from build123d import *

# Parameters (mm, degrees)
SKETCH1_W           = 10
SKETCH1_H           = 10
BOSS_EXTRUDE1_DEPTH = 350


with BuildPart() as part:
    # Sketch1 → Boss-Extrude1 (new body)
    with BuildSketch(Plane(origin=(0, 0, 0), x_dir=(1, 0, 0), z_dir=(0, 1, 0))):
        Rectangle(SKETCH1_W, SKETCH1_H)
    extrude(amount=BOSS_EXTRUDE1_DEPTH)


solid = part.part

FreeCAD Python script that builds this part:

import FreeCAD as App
import Part
import Sketcher

V = App.Vector


def add_polygon(sketch, points):
    """Adds a closed chain of lines whose ends are joined by coincident constraints."""
    first, n = sketch.GeometryCount, len(points)
    for a, b in zip(points, points[1:] + points[:1]):
        sketch.addGeometry(Part.LineSegment(App.Vector(*a, 0), App.Vector(*b, 0)), False)
    for i in range(n):
        sketch.addConstraint(Sketcher.Constraint("Coincident", first + i, 2, first + (i + 1) % n, 1))

doc = App.newDocument("Part")
body = doc.addObject("PartDesign::Body", "Body")

# Sketch on XZ plane
sketch1 = body.newObject("Sketcher::SketchObject", "Sketch")
sketch1.AttachmentSupport = (doc.getObject("XZ_Plane"), [""])
sketch1.MapMode = "FlatFace"
add_polygon(sketch1, [(-5, -5), (-5, 5), (5, 5), (5, -5)])  # lines 0-3
sketch1.addConstraint([
    Sketcher.Constraint("Vertical", 0),
    Sketcher.Constraint("Horizontal", 1),
    Sketcher.Constraint("Vertical", 2),
    Sketcher.Constraint("Horizontal", 3),
    Sketcher.Constraint("Symmetric", 0, 2, 2, 2, -1, 1),
    Sketcher.Constraint("Equal", 3, 0),
    Sketcher.Constraint("DistanceX", 1, 1, 1, 2, 10.0),
])
pad1 = body.newObject("PartDesign::Pad", "Pad")
pad1.Profile = sketch1
pad1.Length = 350
pad1.Reversed = True

doc.recompute()
